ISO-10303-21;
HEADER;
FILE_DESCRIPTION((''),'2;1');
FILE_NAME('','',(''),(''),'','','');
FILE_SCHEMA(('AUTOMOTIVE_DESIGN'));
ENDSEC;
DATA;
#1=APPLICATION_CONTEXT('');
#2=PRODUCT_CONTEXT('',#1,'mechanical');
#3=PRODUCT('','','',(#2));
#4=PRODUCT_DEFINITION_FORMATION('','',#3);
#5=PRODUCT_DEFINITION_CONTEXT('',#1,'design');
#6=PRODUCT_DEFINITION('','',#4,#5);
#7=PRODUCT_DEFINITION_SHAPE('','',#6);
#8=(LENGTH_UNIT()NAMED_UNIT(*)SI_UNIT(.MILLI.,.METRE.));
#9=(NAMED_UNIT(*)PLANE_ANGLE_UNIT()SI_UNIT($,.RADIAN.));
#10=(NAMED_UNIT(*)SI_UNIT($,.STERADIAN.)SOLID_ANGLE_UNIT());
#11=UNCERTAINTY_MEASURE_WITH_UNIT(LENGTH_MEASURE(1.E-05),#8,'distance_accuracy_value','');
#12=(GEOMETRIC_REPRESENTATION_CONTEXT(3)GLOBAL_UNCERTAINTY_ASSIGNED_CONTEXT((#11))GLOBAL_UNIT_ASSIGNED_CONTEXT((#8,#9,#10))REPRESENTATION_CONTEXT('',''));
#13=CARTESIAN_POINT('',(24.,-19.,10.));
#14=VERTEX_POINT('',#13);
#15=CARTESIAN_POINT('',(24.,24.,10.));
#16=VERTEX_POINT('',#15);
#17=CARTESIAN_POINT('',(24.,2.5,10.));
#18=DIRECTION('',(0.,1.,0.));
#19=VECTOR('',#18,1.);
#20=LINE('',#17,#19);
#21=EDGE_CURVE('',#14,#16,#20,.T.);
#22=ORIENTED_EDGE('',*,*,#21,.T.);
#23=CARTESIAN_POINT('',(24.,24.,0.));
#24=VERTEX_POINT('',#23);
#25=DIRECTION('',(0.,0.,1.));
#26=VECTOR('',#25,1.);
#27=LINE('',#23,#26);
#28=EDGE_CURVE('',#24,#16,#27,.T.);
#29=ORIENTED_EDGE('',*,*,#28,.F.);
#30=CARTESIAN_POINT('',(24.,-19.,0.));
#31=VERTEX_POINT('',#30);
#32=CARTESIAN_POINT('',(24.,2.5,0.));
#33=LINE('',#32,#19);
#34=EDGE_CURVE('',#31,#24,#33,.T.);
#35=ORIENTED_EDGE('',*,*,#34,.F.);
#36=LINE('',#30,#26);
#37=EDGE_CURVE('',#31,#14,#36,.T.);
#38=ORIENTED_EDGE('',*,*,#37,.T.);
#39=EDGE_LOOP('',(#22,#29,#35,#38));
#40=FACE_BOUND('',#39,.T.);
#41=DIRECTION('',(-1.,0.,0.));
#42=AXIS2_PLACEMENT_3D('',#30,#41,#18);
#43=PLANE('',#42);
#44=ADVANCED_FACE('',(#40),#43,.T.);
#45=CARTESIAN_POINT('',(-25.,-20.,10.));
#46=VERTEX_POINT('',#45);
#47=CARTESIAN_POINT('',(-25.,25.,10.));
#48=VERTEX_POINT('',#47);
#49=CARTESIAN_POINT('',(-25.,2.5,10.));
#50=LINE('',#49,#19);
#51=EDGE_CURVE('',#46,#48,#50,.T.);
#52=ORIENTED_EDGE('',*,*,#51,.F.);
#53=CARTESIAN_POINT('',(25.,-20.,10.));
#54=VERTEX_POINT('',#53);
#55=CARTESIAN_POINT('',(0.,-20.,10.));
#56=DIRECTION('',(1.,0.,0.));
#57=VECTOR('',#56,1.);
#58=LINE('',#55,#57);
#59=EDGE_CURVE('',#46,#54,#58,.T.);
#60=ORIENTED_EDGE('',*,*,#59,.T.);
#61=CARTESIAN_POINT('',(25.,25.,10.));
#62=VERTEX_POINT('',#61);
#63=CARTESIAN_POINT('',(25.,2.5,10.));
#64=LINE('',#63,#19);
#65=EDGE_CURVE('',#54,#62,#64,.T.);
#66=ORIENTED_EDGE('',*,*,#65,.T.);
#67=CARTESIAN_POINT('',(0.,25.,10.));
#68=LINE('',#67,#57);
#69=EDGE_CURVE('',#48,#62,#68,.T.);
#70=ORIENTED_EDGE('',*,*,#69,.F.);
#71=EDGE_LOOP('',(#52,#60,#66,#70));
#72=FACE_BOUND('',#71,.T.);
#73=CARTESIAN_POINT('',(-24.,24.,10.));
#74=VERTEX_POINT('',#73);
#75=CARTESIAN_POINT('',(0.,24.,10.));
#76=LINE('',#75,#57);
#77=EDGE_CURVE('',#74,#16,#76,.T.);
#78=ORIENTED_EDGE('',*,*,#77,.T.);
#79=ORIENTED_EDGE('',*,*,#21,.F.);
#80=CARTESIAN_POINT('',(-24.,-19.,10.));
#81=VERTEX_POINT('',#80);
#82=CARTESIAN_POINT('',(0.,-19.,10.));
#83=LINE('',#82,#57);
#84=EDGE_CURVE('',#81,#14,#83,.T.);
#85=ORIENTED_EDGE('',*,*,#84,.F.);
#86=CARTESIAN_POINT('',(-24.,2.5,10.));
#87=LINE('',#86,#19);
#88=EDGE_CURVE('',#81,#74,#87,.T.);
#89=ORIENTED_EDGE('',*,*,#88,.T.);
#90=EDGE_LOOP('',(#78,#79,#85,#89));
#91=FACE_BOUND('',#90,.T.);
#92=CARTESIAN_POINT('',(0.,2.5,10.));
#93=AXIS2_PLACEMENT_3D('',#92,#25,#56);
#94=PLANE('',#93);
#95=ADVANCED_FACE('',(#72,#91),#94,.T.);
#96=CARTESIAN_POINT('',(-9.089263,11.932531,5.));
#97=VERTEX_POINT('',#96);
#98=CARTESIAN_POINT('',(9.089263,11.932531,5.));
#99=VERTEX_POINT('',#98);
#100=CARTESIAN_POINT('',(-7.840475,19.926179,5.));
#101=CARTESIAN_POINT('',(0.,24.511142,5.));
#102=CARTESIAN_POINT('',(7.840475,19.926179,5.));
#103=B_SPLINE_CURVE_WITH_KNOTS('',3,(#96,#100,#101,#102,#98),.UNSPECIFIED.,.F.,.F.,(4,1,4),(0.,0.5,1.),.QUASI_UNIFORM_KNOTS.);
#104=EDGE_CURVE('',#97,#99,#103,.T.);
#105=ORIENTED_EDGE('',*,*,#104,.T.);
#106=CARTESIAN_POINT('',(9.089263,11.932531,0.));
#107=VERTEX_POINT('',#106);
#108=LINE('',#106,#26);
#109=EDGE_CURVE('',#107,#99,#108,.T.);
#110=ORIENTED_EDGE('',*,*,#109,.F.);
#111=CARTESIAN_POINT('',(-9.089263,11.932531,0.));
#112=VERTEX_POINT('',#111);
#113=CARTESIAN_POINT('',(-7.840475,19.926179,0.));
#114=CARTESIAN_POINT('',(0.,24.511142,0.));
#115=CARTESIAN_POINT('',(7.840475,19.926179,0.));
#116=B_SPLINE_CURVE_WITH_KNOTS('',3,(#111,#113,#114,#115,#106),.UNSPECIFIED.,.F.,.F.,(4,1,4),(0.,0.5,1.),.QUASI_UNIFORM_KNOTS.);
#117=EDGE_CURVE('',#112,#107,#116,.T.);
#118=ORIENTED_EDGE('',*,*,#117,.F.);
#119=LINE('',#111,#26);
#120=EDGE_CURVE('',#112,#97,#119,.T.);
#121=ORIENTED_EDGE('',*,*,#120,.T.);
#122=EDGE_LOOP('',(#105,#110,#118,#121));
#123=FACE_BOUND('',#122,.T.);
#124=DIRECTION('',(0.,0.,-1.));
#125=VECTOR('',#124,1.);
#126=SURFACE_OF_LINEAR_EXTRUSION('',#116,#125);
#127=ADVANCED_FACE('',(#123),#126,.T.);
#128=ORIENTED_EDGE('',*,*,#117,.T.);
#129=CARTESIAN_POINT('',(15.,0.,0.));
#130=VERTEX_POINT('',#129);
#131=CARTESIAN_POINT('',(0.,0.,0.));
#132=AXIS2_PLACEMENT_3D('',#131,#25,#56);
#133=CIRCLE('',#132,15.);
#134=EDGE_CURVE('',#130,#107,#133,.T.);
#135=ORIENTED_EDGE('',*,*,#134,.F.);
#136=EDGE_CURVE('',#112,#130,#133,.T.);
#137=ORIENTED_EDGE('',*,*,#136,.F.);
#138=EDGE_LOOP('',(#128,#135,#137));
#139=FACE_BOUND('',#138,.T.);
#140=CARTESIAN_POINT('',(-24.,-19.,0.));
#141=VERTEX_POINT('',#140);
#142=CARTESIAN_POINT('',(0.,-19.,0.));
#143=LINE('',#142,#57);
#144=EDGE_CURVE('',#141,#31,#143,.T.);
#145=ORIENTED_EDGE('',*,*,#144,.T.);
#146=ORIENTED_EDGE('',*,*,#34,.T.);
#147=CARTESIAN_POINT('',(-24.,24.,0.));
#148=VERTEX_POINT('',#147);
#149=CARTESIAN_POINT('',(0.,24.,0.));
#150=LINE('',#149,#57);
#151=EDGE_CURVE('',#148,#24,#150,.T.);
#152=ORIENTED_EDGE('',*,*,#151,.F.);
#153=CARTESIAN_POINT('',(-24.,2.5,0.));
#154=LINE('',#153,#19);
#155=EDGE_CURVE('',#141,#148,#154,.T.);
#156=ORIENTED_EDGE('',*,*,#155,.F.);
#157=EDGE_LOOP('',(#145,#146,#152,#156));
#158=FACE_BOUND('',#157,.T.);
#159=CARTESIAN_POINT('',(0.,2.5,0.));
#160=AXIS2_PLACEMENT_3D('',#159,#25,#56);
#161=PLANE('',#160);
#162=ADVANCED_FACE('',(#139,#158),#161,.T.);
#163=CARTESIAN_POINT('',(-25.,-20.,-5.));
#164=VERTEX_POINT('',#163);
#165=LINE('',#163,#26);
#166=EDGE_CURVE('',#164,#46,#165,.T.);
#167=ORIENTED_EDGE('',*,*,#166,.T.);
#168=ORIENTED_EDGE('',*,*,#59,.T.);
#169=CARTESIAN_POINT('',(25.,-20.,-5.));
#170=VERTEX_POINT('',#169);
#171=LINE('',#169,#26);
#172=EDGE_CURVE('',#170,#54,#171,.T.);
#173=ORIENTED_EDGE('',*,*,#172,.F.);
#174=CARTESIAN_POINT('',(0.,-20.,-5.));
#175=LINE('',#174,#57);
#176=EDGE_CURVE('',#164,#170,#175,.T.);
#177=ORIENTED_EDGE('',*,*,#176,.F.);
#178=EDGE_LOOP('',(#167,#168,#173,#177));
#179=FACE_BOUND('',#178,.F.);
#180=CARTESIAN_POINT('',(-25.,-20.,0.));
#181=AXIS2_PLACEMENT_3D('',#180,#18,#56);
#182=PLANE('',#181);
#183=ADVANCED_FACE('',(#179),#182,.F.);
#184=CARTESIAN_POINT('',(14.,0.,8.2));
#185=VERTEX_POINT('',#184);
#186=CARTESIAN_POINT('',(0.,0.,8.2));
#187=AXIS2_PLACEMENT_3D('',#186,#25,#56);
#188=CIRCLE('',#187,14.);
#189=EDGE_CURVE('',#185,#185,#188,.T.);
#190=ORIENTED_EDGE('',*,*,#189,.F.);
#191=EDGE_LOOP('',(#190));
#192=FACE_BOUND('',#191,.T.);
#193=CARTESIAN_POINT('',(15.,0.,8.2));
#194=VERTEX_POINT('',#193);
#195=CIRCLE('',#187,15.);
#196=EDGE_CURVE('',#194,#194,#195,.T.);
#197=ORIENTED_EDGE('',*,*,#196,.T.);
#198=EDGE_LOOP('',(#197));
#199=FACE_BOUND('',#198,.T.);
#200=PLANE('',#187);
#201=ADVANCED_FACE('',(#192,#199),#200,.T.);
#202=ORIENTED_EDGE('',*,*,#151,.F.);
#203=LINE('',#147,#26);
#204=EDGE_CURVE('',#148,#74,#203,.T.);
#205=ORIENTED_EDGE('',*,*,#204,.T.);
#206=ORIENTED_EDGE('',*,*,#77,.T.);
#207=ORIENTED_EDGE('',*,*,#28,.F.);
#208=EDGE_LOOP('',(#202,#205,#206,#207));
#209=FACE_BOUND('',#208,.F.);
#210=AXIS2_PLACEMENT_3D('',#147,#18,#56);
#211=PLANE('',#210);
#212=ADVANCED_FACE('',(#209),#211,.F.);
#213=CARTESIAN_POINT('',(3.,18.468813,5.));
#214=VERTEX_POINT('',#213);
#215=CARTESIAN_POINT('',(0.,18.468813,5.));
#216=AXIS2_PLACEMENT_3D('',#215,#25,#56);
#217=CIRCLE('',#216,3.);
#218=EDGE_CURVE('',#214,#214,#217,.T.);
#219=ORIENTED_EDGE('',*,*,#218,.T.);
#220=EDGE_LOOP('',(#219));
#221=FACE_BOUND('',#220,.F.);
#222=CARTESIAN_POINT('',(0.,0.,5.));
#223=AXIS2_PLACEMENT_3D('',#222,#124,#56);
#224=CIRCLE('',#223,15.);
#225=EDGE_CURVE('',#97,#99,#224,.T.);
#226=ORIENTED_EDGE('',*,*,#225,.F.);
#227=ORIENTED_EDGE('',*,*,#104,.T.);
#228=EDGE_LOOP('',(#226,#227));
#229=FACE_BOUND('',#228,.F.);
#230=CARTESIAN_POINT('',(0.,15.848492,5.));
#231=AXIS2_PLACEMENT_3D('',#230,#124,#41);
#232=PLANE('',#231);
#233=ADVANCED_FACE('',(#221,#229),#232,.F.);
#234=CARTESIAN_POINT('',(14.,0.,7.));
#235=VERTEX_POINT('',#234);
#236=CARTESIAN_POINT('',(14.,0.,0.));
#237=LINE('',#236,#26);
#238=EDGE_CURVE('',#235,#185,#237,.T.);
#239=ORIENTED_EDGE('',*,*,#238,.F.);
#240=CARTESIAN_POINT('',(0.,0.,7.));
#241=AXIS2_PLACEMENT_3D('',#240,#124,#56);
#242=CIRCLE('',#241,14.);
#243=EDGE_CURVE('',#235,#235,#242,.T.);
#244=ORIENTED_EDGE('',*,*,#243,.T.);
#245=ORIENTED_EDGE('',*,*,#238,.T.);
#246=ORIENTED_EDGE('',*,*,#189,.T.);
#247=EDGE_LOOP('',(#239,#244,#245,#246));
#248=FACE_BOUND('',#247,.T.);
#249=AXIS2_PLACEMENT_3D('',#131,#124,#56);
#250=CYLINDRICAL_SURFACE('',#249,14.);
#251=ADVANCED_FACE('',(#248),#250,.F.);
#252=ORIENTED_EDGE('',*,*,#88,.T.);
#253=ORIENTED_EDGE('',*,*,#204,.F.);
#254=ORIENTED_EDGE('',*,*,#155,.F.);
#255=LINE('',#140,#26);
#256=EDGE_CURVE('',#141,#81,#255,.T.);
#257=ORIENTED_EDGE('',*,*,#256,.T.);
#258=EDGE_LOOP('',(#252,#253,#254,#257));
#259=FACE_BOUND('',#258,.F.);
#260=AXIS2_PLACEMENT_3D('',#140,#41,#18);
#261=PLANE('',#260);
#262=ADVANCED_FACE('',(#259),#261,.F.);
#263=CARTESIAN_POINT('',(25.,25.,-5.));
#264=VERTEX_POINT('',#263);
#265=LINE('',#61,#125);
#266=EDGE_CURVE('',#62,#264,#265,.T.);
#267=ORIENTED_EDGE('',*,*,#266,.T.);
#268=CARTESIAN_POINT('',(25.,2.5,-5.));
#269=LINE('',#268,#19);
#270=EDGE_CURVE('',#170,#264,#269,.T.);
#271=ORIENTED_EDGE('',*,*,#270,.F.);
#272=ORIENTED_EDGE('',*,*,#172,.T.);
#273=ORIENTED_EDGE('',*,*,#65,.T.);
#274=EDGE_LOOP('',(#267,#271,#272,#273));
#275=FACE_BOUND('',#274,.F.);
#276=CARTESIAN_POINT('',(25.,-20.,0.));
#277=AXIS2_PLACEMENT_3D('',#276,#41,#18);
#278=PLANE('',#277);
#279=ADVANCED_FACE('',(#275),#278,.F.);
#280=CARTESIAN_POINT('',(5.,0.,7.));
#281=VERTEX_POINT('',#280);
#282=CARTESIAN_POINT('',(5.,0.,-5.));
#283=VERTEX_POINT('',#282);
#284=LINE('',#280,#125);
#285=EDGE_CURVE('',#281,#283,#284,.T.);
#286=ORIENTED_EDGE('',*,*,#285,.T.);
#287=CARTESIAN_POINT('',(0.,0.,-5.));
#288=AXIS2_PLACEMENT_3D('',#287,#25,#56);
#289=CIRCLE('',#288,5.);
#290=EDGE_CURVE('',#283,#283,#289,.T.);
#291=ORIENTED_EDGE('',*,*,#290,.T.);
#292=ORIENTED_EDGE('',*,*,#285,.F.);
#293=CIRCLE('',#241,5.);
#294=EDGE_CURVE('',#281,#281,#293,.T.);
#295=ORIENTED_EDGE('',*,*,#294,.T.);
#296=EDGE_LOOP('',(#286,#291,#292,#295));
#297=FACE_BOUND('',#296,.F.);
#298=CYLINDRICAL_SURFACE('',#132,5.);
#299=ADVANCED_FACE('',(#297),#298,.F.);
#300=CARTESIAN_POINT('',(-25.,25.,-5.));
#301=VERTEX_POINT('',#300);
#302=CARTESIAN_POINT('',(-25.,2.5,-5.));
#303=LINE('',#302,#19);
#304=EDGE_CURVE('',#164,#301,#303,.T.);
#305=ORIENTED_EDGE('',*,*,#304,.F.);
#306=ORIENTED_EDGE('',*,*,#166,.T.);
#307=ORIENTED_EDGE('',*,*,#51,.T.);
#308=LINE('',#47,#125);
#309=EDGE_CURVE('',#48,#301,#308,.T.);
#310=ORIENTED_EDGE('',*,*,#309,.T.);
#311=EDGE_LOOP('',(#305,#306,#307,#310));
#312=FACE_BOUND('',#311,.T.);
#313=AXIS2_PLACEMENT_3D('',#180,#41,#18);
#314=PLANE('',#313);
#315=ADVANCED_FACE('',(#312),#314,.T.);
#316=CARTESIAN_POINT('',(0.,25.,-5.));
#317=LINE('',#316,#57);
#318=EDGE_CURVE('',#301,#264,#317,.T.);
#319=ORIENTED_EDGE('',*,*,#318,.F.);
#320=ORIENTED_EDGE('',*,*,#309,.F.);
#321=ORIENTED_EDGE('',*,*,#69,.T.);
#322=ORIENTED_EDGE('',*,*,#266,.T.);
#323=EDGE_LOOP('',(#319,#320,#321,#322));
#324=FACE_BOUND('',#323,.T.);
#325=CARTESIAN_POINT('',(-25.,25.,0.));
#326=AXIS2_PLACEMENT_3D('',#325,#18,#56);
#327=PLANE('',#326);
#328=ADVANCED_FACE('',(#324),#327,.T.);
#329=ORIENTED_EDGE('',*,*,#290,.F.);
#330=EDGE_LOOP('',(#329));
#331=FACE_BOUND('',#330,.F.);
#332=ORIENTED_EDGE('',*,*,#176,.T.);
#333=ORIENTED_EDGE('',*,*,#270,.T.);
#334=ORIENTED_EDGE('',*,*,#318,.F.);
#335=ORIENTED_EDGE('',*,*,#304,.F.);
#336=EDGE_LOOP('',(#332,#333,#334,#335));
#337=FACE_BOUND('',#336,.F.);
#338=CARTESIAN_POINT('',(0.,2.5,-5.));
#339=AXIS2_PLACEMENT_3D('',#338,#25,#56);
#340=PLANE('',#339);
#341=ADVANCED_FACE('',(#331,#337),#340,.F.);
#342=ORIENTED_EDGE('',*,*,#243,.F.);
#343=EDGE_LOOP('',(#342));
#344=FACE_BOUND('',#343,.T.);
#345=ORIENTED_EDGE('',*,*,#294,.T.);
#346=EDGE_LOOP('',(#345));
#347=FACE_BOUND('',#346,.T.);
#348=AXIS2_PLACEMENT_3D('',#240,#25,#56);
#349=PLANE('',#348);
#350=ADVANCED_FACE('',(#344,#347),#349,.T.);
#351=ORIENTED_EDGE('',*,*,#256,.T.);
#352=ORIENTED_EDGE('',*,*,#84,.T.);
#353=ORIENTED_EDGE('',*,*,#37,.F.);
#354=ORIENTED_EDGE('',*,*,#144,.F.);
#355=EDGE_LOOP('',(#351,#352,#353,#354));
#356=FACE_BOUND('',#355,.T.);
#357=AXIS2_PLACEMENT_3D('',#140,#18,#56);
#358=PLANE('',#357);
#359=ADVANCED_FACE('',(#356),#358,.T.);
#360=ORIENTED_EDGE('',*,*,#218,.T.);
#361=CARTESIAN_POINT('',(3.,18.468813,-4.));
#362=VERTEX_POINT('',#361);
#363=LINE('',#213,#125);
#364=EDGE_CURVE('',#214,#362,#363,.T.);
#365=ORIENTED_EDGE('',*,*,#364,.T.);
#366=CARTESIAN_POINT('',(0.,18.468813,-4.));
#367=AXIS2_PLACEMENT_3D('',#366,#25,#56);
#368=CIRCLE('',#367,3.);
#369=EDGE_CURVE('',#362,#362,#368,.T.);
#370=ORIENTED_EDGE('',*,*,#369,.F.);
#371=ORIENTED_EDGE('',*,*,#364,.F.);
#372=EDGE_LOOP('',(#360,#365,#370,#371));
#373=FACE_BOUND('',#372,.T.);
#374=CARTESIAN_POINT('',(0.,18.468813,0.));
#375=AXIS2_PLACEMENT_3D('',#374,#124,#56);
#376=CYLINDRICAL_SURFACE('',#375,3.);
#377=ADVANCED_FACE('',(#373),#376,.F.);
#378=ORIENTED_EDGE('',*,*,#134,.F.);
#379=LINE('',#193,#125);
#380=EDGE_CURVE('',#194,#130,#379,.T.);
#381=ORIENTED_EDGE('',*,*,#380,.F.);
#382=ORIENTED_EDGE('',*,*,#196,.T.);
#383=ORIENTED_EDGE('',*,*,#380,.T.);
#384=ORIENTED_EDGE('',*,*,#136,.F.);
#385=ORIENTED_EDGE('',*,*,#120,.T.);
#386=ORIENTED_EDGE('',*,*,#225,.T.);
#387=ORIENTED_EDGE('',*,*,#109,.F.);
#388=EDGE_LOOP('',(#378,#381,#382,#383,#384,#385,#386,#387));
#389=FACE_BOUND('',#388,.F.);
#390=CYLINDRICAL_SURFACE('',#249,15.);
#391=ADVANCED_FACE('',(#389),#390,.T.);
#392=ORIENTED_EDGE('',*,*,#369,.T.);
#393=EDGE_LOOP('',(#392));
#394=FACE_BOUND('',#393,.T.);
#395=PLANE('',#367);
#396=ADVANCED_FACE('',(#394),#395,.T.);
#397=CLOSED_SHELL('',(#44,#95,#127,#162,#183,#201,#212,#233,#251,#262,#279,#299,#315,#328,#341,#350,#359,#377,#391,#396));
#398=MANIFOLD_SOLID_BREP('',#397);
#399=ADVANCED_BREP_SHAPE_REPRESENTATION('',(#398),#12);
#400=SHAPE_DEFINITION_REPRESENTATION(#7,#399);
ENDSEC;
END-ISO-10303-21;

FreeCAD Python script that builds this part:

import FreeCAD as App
import Part
import Sketcher
from FreeCAD import Vector
Q = App.Units.Quantity


def add_polygon(sketch, points):
    """Adds a closed chain of lines whose ends are joined by coincident constraints."""
    first, n = sketch.GeometryCount, len(points)
    for a, b in zip(points, points[1:] + points[:1]):
        sketch.addGeometry(Part.LineSegment(App.Vector(*a, 0), App.Vector(*b, 0)), False)
    for i in range(n):
        sketch.addConstraint(Sketcher.Constraint("Coincident", first + i, 2, first + (i + 1) % n, 1))

doc = App.newDocument("Part")
body = doc.addObject("PartDesign::Body", "Body")

# Sketch on XY plane
sketch1 = body.newObject("Sketcher::SketchObject", "Sketch")
sketch1.AttachmentSupport = (doc.getObject("XY_Plane"), [""])
sketch1.MapMode = "FlatFace"
sketch1.addGeometry(Part.Circle(Vector(0, 0, 0), Vector(0, 0, 1), 15), False)
sketch1.addConstraint(Sketcher.Constraint("Coincident", 0, 3, -1, 1))
sketch1.addConstraint(Sketcher.Constraint("Diameter", 0, Q("30 mm")))
pad1 = body.newObject("PartDesign::Pad", "Pad")
pad1.Profile = sketch1
pad1.Length = 7

# Sketch on XY plane
sketch2 = body.newObject("Sketcher::SketchObject", "Sketch001")
sketch2.AttachmentSupport = (doc.getObject("XY_Plane"), [""])
sketch2.MapMode = "FlatFace"
sketch2.addGeometry(Part.BSplineCurve([Vector(-9.089263, 11.932531, 0), Vector(-7.840475, 19.926179, 0), Vector(0, 24.511142, 0), Vector(7.840475, 19.926179, 0), Vector(9.089263, 11.932531, 0)], [4, 1, 4], [0, 0.5, 1], False, 3, [1, 1, 1, 1, 1], False), False)
sketch2.addGeometry(Part.LineSegment(Vector(-9.089263, 11.932531, 0), Vector(9.089263, 11.932531, 0)), False)
sketch2.addGeometry(Part.Circle(Vector(0, 18.468813, 0), Vector(0, 0, 1), 3), False)
sketch2.addConstraint(Sketcher.Constraint("Block", 0))
sketch2.addConstraint(Sketcher.Constraint("Coincident", 0, 1, 1, 1))
sketch2.addConstraint(Sketcher.Constraint("Coincident", 1, 2, 0, 2))
sketch2.addConstraint(Sketcher.Constraint("PointOnObject", 2, 3, -2))
sketch2.addConstraint(Sketcher.Constraint("Diameter", 2, Q("6 mm")))
sketch2.addConstraint(Sketcher.Constraint("DistanceY", -1, 1, 2, 3, Q("18.468813 mm")))
pad2 = body.newObject("PartDesign::Pad", "Pad001")
pad2.Profile = sketch2
pad2.Length = 5

# Sketch on XY plane
sketch3 = body.newObject("Sketcher::SketchObject", "Sketch002")
sketch3.AttachmentSupport = (doc.getObject("XY_Plane"), [""])
sketch3.MapMode = "FlatFace"
sketch3.addGeometry(Part.Circle(Vector(0, 0, 0), Vector(0, 0, 1), 15), False)
sketch3.addGeometry(Part.Circle(Vector(0, 0, 0), Vector(0, 0, 1), 14), False)
sketch3.addConstraint(Sketcher.Constraint("Coincident", 0, 3, -1, 1))
sketch3.addConstraint(Sketcher.Constraint("Coincident", 1, 3, -1, 1))
sketch3.addConstraint(Sketcher.Constraint("Diameter", 0, Q("30 mm")))
sketch3.addConstraint(Sketcher.Constraint("Diameter", 1, Q("28 mm")))
pad3 = body.newObject("PartDesign::Pad", "Pad002")
pad3.Profile = sketch3
pad3.Length = 8.2

# Sketch on XY plane
sketch4 = body.newObject("Sketcher::SketchObject", "Sketch003")
sketch4.AttachmentSupport = (doc.getObject("XY_Plane"), [""])
sketch4.MapMode = "FlatFace"
add_polygon(sketch4, [(-25, 25), (-25, -20), (25, -20), (25, 25)])  # lines 0-3
sketch4.addConstraint(Sketcher.Constraint("Vertical", 0))
sketch4.addConstraint(Sketcher.Constraint("Horizontal", 1))
sketch4.addConstraint(Sketcher.Constraint("Vertical", 2))
sketch4.addConstraint(Sketcher.Constraint("Horizontal", 3))
sketch4.addConstraint(Sketcher.Constraint("DistanceX", 1, 1, 1, 2, Q("50 mm")))
sketch4.addConstraint(Sketcher.Constraint("DistanceY", 0, 2, 0, 1, Q("45 mm")))
sketch4.addConstraint(Sketcher.Constraint("DistanceX", 0, 2, -1, 1, Q("25 mm")))
sketch4.addConstraint(Sketcher.Constraint("DistanceY", 0, 2, -1, 1, Q("20 mm")))
pad4 = body.newObject("PartDesign::Pad", "Pad003")
pad4.Profile = sketch4
pad4.Length = 5
pad4.Reversed = True

# Sketch on XY plane
sketch5 = body.newObject("Sketcher::SketchObject", "Sketch004")
sketch5.AttachmentSupport = (doc.getObject("XY_Plane"), [""])
sketch5.MapMode = "FlatFace"
add_polygon(sketch5, [(-25, 25), (-25, -20), (25, -20), (25, 25)])  # lines 0-3
add_polygon(sketch5, [(24, -19), (-24, -19), (-24, 24), (24, 24)])  # lines 4-7
sketch5.addConstraint(Sketcher.Constraint("Vertical", 0))
sketch5.addConstraint(Sketcher.Constraint("Horizontal", 1))
sketch5.addConstraint(Sketcher.Constraint("Vertical", 2))
sketch5.addConstraint(Sketcher.Constraint("Horizontal", 3))
sketch5.addConstraint(Sketcher.Constraint("Horizontal", 4))
sketch5.addConstraint(Sketcher.Constraint("Vertical", 5))
sketch5.addConstraint(Sketcher.Constraint("Horizontal", 6))
sketch5.addConstraint(Sketcher.Constraint("Vertical", 7))
sketch5.addConstraint(Sketcher.Constraint("DistanceX", 1, 1, 1, 2, Q("50 mm")))
sketch5.addConstraint(Sketcher.Constraint("DistanceX", 4, 2, 4, 1, Q("48 mm")))
sketch5.addConstraint(Sketcher.Constraint("DistanceY", 0, 2, 0, 1, Q("45 mm")))
sketch5.addConstraint(Sketcher.Constraint("DistanceY", 5, 1, 5, 2, Q("43 mm")))
sketch5.addConstraint(Sketcher.Constraint("DistanceX", 0, 2, -1, 1, Q("25 mm")))
sketch5.addConstraint(Sketcher.Constraint("DistanceY", 0, 2, -1, 1, Q("20 mm")))
sketch5.addConstraint(Sketcher.Constraint("DistanceX", 4, 2, -1, 1, Q("24 mm")))
sketch5.addConstraint(Sketcher.Constraint("DistanceY", 4, 2, -1, 1, Q("19 mm")))
pad5 = body.newObject("PartDesign::Pad", "Pad004")
pad5.Profile = sketch5
pad5.Length = 10

# Sketch on XY plane
sketch6 = body.newObject("Sketcher::SketchObject", "Sketch005")
sketch6.AttachmentSupport = (doc.getObject("XY_Plane"), [""])
sketch6.MapMode = "FlatFace"
sketch6.addGeometry(Part.Circle(Vector(0, 0, 0), Vector(0, 0, 1), 5), False)
sketch6.addConstraint(Sketcher.Constraint("Coincident", 0, 3, -1, 1))
sketch6.addConstraint(Sketcher.Constraint("Diameter", 0, Q("10 mm")))
pocket1 = body.newObject("PartDesign::Pocket", "Pocket")
pocket1.Profile = sketch6
pocket1.Type = "ThroughAll"
pocket1.Midplane = True

# Sketch on XY plane
sketch7 = body.newObject("Sketcher::SketchObject", "Sketch006")
sketch7.AttachmentSupport = (doc.getObject("XY_Plane"), [""])
sketch7.MapMode = "FlatFace"
sketch7.addGeometry(Part.Circle(Vector(0, 18.5, 0), Vector(0, 0, 1), 3), False)
sketch7.addConstraint(Sketcher.Constraint("PointOnObject", 0, 3, -2))
sketch7.addConstraint(Sketcher.Constraint("Diameter", 0, Q("6 mm")))
sketch7.addConstraint(Sketcher.Constraint("DistanceY", -1, 1, 0, 3, Q("18.468813 mm")))
pocket2 = body.newObject("PartDesign::Pocket", "Pocket001")
pocket2.Profile = sketch7
pocket2.Length = 4

doc.recompute()
